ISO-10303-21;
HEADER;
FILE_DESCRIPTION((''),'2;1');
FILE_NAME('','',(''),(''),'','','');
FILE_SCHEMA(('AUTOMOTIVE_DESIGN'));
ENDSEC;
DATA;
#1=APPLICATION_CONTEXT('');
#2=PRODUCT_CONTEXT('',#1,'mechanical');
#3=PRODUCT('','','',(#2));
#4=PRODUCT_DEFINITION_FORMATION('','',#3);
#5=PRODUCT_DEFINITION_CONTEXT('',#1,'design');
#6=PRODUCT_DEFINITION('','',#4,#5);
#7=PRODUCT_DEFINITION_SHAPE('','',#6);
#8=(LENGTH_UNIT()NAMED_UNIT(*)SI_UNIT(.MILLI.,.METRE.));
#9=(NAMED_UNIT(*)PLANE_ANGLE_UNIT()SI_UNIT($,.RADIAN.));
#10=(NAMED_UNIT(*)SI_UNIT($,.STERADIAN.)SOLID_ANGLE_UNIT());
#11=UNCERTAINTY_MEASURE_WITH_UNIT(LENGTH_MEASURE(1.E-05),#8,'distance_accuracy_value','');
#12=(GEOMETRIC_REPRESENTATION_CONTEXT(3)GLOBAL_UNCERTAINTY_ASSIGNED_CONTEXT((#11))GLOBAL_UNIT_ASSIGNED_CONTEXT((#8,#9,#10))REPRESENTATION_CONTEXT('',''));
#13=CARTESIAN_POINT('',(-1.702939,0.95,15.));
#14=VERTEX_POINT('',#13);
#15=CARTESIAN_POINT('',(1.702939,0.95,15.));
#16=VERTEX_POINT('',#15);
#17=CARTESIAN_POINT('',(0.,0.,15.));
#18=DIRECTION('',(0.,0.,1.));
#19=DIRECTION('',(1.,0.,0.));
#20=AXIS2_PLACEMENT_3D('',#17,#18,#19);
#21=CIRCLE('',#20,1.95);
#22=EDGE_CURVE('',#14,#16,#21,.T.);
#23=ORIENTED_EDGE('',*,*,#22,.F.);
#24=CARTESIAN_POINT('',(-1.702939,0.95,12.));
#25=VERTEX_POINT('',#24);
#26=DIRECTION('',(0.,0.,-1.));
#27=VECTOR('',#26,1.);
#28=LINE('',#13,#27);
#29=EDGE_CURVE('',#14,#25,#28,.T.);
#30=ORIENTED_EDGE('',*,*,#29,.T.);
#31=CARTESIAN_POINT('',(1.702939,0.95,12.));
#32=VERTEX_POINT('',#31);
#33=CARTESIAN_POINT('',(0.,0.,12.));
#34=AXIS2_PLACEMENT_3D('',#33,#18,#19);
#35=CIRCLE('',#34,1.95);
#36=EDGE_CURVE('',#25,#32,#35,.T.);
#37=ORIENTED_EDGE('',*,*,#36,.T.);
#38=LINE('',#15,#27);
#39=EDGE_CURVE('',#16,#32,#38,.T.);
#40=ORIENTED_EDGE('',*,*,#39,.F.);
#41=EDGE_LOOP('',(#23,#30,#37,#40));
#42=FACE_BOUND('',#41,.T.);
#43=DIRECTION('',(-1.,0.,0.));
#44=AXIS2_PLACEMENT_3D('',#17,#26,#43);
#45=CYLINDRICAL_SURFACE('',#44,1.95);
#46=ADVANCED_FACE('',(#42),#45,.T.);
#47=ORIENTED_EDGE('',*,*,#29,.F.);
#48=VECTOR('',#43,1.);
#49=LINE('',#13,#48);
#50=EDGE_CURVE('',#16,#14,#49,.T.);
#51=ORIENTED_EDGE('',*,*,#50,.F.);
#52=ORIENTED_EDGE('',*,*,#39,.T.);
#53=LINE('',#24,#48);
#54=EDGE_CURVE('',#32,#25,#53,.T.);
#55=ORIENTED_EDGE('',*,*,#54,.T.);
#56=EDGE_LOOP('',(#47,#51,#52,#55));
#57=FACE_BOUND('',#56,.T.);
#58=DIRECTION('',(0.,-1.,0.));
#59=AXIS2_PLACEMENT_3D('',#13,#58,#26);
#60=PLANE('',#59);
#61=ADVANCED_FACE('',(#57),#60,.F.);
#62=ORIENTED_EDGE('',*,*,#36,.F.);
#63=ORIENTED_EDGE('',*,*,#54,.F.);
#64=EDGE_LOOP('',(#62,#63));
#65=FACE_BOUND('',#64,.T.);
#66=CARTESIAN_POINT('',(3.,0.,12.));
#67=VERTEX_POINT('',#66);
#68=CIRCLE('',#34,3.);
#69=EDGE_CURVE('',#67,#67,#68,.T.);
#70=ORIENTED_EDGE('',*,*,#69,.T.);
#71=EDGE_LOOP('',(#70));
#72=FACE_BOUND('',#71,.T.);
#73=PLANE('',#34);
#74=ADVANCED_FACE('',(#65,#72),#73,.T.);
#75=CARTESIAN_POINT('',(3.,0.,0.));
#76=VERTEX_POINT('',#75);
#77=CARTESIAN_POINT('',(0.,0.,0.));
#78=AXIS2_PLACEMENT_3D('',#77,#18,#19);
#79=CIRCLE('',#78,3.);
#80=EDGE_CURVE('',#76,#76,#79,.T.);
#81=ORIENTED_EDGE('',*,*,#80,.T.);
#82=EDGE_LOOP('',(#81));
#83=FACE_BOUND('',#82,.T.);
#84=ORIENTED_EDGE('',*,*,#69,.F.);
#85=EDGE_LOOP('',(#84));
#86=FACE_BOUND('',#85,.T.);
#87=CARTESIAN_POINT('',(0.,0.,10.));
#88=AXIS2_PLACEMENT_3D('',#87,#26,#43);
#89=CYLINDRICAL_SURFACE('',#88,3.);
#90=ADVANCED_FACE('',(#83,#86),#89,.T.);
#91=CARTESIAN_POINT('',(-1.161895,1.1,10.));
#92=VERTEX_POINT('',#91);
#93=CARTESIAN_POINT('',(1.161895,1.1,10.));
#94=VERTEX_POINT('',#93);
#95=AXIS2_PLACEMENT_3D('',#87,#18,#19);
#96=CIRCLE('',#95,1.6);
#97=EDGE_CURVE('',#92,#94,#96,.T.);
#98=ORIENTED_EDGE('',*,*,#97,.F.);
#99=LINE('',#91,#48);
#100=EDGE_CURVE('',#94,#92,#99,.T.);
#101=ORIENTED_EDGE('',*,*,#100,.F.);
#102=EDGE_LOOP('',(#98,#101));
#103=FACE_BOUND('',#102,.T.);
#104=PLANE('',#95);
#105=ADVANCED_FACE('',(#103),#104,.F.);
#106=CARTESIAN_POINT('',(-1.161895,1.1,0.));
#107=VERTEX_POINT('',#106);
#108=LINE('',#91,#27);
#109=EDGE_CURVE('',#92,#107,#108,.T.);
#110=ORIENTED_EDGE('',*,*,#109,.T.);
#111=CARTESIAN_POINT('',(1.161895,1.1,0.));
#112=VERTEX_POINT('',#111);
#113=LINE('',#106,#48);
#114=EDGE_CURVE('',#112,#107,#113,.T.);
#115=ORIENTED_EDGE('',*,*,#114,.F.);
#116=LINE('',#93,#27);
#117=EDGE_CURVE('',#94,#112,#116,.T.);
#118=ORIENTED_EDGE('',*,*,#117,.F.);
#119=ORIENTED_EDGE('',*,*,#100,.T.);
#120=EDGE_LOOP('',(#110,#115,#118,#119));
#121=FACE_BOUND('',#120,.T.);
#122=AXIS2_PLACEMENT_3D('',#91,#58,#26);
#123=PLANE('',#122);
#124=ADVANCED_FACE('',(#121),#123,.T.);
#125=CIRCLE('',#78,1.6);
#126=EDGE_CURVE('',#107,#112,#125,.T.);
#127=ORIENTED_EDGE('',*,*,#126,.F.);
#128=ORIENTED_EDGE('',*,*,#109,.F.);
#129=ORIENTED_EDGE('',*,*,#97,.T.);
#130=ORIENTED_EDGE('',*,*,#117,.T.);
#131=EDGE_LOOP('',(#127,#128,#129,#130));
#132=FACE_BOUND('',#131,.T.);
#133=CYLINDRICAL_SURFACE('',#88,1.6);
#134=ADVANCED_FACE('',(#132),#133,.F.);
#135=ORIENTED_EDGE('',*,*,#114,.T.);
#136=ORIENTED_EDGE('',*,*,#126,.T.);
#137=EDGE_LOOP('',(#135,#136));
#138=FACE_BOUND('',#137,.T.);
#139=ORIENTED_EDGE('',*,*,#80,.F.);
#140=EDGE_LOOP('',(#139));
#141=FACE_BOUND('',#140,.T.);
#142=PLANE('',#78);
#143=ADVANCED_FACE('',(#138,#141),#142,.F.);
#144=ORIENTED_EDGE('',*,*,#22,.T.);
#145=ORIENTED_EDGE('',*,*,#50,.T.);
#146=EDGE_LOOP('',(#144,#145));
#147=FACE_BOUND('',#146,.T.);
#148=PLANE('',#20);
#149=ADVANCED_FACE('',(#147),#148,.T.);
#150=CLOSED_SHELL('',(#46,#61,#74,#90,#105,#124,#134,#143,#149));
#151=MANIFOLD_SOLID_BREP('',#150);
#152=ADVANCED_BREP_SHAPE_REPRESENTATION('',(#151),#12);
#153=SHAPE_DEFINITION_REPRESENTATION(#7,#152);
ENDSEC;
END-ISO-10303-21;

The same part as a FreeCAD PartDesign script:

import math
import FreeCAD as App
import Part
import Sketcher
from FreeCAD import Vector
Q = App.Units.Quantity

doc = App.newDocument("Part")
params = doc.addObject("Spreadsheet::Sheet", "Params")
for row, (alias, value) in enumerate([
    ("sketch1_diameter", "6 mm"),
    ("sketch1_radius", "1.6 mm"),
    ("pad1_length", "10 mm"),
    ("sketch2_diameter", "6 mm"),
    ("pad2_length", "2 mm"),
    ("sketch3_radius", "1.95 mm"),
    ("pad3_length", "3 mm"),
], start=1):
    params.set(f"A{row}", alias)
    params.set(f"B{row}", "=" + value)
    params.setAlias(f"B{row}", alias)

body = doc.addObject("PartDesign::Body", "Body")

# Sketch on XY plane
sketch1 = body.newObject("Sketcher::SketchObject", "Sketch")
sketch1.AttachmentSupport = (doc.getObject("XY_Plane"), [""])
sketch1.MapMode = "FlatFace"
sketch1.addGeometry([
    Part.Circle(Vector(0, 0, 0), Vector(0, 0, 1), 3),
    Part.ArcOfCircle(Part.Circle(Vector(0, 0, 0), Vector(0, 0, 1), 1.6), math.radians(137), math.radians(403)),
    Part.LineSegment(Vector(-1.2, 1.1, 0), Vector(1.2, 1.1, 0)),
], False)
sketch1.addConstraint([
    Sketcher.Constraint("Coincident", 1, 1, 2, 1),
    Sketcher.Constraint("Coincident", 2, 2, 1, 2),
    Sketcher.Constraint("Horizontal", 2),
    Sketcher.Constraint("Coincident", 0, 3, -1, 1),
    Sketcher.Constraint("Coincident", 1, 3, -1, 1),
    Sketcher.Constraint("Diameter", 0, Q("6 mm")),
    Sketcher.Constraint("Radius", 1, Q("1.6 mm")),
    Sketcher.Constraint("DistanceY", -1, 1, 1, 1, Q("1.1 mm")),
])
sketch1.setExpression("Constraints[5]", "Params.sketch1_diameter")
sketch1.setExpression("Constraints[6]", "Params.sketch1_radius")
pad1 = body.newObject("PartDesign::Pad", "Pad")
pad1.Profile = sketch1
pad1.setExpression("Length", "Params.pad1_length")

# Sketch on XY plane
sketch2 = body.newObject("Sketcher::SketchObject", "Sketch001")
sketch2.AttachmentSupport = (doc.getObject("XY_Plane"), [""])
sketch2.MapMode = "FlatFace"
sketch2.AttachmentOffset = App.Placement(Vector(0, 0, 10), App.Rotation())
sketch2.addGeometry(Part.Circle(Vector(0, 0, 0), Vector(0, 0, 1), 3), False)
sketch2.addConstraint([
    Sketcher.Constraint("Coincident", 0, 3, -1, 1),
    Sketcher.Constraint("Diameter", 0, Q("6 mm")),
])
sketch2.setExpression("Constraints[1]", "Params.sketch2_diameter")
pad2 = body.newObject("PartDesign::Pad", "Pad001")
pad2.Profile = sketch2
pad2.setExpression("Length", "Params.pad2_length")

# Sketch on XY plane
sketch3 = body.newObject("Sketcher::SketchObject", "Sketch002")
sketch3.AttachmentSupport = (doc.getObject("XY_Plane"), [""])
sketch3.MapMode = "FlatFace"
sketch3.AttachmentOffset = App.Placement(Vector(0, 0, 12), App.Rotation())
sketch3.addGeometry([
    Part.LineSegment(Vector(1.7, 0.9, 0), Vector(-1.7, 0.9, 0)),
    Part.ArcOfCircle(Part.Circle(Vector(0, 0, 0), Vector(0, 0, 1), 1.9), math.radians(151), math.radians(389)),
], False)
sketch3.addConstraint([
    Sketcher.Constraint("Coincident", 0, 1, 1, 2),
    Sketcher.Constraint("Coincident", 1, 1, 0, 2),
    Sketcher.Constraint("Horizontal", 0),
    Sketcher.Constraint("Coincident", 1, 3, -1, 1),
    Sketcher.Constraint("Radius", 1, Q("1.95 mm")),
    Sketcher.Constraint("DistanceY", -1, 1, 0, 1, Q("0.95 mm")),
])
sketch3.setExpression("Constraints[4]", "Params.sketch3_radius")
pad3 = body.newObject("PartDesign::Pad", "Pad002")
pad3.Profile = sketch3
pad3.setExpression("Length", "Params.pad3_length")

doc.recompute()
